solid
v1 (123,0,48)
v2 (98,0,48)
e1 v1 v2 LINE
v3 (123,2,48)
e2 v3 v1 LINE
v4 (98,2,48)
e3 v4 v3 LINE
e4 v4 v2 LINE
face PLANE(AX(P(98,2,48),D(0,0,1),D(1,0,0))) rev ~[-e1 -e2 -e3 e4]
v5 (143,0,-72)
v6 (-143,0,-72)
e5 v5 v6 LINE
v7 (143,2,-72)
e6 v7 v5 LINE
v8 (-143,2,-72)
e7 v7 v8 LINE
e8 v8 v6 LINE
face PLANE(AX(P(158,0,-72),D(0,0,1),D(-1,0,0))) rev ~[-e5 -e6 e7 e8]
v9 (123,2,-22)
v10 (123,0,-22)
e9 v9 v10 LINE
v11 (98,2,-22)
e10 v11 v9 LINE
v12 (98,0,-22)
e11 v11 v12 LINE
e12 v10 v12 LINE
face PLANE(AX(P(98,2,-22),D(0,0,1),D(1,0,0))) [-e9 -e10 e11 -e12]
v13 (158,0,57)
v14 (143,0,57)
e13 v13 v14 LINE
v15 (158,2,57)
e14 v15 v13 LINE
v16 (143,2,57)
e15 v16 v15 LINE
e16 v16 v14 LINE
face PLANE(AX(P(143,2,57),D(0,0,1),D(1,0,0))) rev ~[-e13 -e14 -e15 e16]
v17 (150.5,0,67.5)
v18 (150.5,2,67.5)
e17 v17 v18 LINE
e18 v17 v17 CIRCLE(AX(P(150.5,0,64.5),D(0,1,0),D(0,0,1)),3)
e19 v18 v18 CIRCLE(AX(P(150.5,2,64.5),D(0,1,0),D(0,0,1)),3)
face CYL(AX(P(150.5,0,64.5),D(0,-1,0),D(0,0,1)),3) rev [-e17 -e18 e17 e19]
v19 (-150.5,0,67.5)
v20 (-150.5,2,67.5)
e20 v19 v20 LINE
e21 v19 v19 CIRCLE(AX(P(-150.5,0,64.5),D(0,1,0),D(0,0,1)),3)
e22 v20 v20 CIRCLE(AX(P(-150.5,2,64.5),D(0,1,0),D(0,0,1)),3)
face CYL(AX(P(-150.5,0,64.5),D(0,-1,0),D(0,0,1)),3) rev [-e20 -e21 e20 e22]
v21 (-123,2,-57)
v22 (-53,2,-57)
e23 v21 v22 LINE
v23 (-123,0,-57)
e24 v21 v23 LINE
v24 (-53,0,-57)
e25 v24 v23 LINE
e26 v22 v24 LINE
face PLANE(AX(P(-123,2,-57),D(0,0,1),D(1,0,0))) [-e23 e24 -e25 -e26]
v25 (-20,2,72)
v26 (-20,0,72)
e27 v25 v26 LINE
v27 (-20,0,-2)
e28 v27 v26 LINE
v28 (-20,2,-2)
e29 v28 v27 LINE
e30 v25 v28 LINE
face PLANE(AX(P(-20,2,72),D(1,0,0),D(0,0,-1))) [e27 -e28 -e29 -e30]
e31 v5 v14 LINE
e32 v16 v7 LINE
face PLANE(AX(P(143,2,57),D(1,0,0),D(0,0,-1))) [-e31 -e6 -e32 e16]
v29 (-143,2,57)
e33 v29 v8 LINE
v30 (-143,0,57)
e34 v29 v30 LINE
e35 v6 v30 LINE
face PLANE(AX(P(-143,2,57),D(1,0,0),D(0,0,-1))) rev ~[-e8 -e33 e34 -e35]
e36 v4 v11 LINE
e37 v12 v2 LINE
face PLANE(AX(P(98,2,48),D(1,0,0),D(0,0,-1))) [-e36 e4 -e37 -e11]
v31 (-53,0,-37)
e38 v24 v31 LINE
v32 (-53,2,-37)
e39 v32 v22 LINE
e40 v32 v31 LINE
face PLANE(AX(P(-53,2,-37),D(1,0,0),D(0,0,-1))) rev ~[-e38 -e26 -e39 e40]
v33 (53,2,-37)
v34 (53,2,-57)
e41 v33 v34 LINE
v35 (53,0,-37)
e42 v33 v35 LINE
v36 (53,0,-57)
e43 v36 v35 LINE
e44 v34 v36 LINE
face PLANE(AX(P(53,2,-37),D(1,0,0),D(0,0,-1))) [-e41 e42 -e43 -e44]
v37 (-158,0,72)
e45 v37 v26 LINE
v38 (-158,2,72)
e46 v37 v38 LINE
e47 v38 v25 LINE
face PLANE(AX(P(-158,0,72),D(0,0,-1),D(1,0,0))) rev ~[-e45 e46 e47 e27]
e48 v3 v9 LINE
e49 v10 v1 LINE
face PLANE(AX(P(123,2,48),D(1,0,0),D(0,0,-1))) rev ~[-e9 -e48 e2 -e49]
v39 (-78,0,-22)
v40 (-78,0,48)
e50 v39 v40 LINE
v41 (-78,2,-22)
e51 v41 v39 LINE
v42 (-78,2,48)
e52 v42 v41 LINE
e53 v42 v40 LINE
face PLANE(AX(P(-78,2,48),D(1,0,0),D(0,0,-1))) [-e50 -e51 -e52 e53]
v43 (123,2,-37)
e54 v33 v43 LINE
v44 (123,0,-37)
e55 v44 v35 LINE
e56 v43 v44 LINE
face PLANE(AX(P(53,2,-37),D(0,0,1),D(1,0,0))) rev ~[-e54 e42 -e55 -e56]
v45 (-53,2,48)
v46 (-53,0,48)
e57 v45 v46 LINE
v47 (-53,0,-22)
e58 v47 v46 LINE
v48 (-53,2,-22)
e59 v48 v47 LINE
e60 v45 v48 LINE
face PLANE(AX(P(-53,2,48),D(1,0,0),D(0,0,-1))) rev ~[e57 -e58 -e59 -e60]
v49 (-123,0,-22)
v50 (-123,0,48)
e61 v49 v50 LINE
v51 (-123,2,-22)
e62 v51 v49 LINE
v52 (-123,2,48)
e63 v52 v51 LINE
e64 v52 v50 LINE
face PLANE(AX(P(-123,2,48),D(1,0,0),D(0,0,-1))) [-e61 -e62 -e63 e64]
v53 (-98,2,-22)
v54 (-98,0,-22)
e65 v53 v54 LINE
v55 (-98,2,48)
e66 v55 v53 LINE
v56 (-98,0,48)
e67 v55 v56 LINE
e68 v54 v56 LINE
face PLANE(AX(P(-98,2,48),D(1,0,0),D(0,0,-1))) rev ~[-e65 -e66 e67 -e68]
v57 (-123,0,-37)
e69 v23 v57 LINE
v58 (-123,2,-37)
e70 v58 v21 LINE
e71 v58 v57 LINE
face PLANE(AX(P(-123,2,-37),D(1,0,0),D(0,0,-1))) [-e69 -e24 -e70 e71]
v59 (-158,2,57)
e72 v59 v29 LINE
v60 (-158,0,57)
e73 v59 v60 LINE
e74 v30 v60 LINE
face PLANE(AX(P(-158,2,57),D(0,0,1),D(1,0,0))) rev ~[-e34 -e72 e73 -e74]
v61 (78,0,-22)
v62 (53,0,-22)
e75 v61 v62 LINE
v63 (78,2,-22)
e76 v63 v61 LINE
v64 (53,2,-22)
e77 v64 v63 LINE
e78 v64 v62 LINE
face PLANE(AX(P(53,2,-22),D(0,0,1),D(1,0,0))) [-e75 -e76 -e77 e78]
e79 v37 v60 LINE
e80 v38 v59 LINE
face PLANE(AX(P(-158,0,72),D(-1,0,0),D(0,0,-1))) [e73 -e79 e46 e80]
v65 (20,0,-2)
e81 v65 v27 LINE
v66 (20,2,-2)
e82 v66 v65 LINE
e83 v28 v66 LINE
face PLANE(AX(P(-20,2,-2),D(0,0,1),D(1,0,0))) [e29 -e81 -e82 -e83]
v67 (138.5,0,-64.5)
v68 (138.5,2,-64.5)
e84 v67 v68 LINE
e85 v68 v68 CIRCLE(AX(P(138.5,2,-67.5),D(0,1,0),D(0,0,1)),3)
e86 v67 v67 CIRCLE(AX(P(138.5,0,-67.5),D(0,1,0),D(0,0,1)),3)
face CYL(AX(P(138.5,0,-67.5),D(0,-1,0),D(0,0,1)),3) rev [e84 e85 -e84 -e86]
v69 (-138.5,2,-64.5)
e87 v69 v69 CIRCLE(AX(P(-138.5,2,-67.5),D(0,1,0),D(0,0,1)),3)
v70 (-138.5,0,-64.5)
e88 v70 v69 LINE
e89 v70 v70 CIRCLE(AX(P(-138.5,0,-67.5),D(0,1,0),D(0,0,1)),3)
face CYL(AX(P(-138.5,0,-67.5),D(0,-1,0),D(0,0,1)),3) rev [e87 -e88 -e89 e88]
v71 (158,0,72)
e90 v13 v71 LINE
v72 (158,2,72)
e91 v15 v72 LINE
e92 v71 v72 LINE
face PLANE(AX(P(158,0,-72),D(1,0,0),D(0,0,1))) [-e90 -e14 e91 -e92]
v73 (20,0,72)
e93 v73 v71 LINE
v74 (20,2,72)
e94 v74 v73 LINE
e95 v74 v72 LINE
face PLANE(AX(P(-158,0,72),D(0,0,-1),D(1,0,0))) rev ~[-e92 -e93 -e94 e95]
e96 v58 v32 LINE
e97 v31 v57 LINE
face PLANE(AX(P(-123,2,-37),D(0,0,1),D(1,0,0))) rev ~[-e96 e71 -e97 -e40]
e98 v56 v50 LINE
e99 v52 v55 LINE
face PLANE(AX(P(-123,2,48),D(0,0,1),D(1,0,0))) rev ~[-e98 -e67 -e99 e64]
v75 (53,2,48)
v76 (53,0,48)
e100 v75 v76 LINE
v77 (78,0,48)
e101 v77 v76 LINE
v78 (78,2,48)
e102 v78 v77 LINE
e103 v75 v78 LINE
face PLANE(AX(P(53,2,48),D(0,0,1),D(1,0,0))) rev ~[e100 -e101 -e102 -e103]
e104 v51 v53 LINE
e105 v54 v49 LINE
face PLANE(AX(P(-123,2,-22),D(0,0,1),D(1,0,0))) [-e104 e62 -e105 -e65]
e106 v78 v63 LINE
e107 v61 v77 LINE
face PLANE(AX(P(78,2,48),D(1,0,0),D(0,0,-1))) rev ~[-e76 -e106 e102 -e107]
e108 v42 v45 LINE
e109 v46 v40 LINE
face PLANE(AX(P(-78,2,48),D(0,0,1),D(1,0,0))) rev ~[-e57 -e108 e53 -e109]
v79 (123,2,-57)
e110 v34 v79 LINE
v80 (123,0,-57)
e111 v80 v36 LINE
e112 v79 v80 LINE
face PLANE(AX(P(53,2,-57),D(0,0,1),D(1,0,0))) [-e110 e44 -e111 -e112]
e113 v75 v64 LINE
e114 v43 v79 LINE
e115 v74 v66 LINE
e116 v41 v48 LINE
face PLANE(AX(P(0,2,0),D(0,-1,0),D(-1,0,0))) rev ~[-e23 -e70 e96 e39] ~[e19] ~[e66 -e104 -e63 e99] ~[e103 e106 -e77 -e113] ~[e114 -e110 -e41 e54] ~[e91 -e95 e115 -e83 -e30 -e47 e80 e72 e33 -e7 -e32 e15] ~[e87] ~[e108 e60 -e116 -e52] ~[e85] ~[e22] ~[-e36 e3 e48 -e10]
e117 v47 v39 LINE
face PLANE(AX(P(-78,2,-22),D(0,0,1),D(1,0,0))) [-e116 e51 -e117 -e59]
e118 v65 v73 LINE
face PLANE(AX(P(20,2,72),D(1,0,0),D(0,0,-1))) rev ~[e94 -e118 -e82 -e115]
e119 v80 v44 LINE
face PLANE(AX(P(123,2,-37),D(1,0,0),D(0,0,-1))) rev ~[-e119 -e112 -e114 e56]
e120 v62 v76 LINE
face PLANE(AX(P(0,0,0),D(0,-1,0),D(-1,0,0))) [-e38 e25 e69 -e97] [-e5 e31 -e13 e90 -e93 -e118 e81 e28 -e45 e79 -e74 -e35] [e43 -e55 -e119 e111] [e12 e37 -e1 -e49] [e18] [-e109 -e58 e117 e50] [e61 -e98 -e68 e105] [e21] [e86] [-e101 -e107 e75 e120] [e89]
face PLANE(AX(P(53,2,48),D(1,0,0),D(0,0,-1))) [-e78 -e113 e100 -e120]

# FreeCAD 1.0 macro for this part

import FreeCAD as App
import Part
import Sketcher

V = App.Vector

doc = App.newDocument("Part")
body = doc.addObject("PartDesign::Body", "Body")

# Sketch on XZ plane
sketch1 = body.newObject("Sketcher::SketchObject", "Sketch")
sketch1.AttachmentSupport = (doc.getObject("XZ_Plane"), [""])
sketch1.MapMode = "FlatFace"
sketch1.addGeometry([
    Part.LineSegment(V(158, -72, 0), V(-158, -72, 0)),  # 0
    Part.LineSegment(V(-158, -72, 0), V(-158, 72, 0)),  # 1
    Part.LineSegment(V(-158, 72, 0), V(158, 72, 0)),  # 2
    Part.LineSegment(V(158, 72, 0), V(158, -72, 0)),  # 3
    Part.Circle(V(150.5, 64.5, 0), V(0, 0, 1), 3),  # 4
    Part.Circle(V(-150.5, 64.5, 0), V(0, 0, 1), 3),  # 5
    Part.Circle(V(138.5, -67.5, 0), V(0, 0, 1), 3),  # 6
    Part.Circle(V(-138.5, -67.5, 0), V(0, 0, 1), 3),  # 7
], False)
sketch1.addConstraint([
    Sketcher.Constraint("Coincident", 0, 2, 1, 1),
    Sketcher.Constraint("Coincident", 1, 2, 2, 1),
    Sketcher.Constraint("Coincident", 2, 2, 3, 1),
    Sketcher.Constraint("Coincident", 3, 2, 0, 1),
    Sketcher.Constraint("Horizontal", 0),
    Sketcher.Constraint("Vertical", 1),
    Sketcher.Constraint("Horizontal", 2),
    Sketcher.Constraint("Vertical", 3),
    Sketcher.Constraint("Equal", 4, 5),
    Sketcher.Constraint("Equal", 5, 6),
    Sketcher.Constraint("Equal", 6, 7),
    Sketcher.Constraint("Symmetric", 0, 2, 2, 2, -1, 1),
    Sketcher.Constraint("Symmetric", 4, 3, 5, 3, -2),
    Sketcher.Constraint("Symmetric", 6, 3, 7, 3, -2),
    Sketcher.Constraint("Diameter", 4, 6.0),
    Sketcher.Constraint("DistanceX", 0, 2, 0, 1, 316.0),
    Sketcher.Constraint("DistanceY", 1, 1, 1, 2, 144.0),
    Sketcher.Constraint("DistanceX", 5, 3, 4, 3, 301.0),
    Sketcher.Constraint("DistanceX", 6, 3, 4, 3, 12.0),
    Sketcher.Constraint("DistanceY", 6, 3, 4, 3, 132.0),
    Sketcher.Constraint("DistanceY", -1, 1, 4, 3, 64.5),
])
pad1 = body.newObject("PartDesign::Pad", "Pad")
pad1.Profile = sketch1
pad1.Length = 2
pad1.Reversed = True

# Sketch on XZ plane
sketch2 = body.newObject("Sketcher::SketchObject", "Sketch001")
sketch2.AttachmentSupport = (doc.getObject("XZ_Plane"), [""])
sketch2.MapMode = "FlatFace"
sketch2.AttachmentOffset = App.Placement(V(0, 0, -2), App.Rotation())
sketch2.addGeometry([
    Part.LineSegment(V(143, -72, 0), V(143, 57, 0)),  # 0
    Part.LineSegment(V(143, 57, 0), V(158, 57, 0)),  # 1
    Part.LineSegment(V(158, 57, 0), V(158, -72, 0)),  # 2
    Part.LineSegment(V(158, -72, 0), V(143, -72, 0)),  # 3
    Part.LineSegment(V(-158, -72, 0), V(-158, 57, 0)),  # 4
    Part.LineSegment(V(-158, 57, 0), V(-143, 57, 0)),  # 5
    Part.LineSegment(V(-143, 57, 0), V(-143, -72, 0)),  # 6
    Part.LineSegment(V(-143, -72, 0), V(-158, -72, 0)),  # 7
], False)
sketch2.addConstraint([
    Sketcher.Constraint("Coincident", 0, 2, 1, 1),
    Sketcher.Constraint("Coincident", 1, 2, 2, 1),
    Sketcher.Constraint("Coincident", 2, 2, 3, 1),
    Sketcher.Constraint("Coincident", 3, 2, 0, 1),
    Sketcher.Constraint("Coincident", 4, 2, 5, 1),
    Sketcher.Constraint("Coincident", 5, 2, 6, 1),
    Sketcher.Constraint("Coincident", 6, 2, 7, 1),
    Sketcher.Constraint("Coincident", 7, 2, 4, 1),
    Sketcher.Constraint("Vertical", 0),
    Sketcher.Constraint("Horizontal", 1),
    Sketcher.Constraint("Vertical", 2),
    Sketcher.Constraint("Horizontal", 3),
    Sketcher.Constraint("Vertical", 4),
    Sketcher.Constraint("Horizontal", 5),
    Sketcher.Constraint("Vertical", 6),
    Sketcher.Constraint("Horizontal", 7),
    Sketcher.Constraint("Symmetric", 1, 2, 4, 2, -2),
    Sketcher.Constraint("Symmetric", 3, 2, 6, 2, -2),
    Sketcher.Constraint("DistanceX", 1, 1, 1, 2, 15.0),
    Sketcher.Constraint("DistanceY", 0, 1, 0, 2, 129.0),
    Sketcher.Constraint("DistanceX", -1, 1, 0, 2, 143.0),
    Sketcher.Constraint("DistanceY", -1, 1, 0, 2, 57.0),
])
pocket1 = body.newObject("PartDesign::Pocket", "Pocket")
pocket1.Profile = sketch2
pocket1.Type = "ThroughAll"
pocket1.Reversed = True

# Sketch on XZ plane
sketch3 = body.newObject("Sketcher::SketchObject", "Sketch002")
sketch3.AttachmentSupport = (doc.getObject("XZ_Plane"), [""])
sketch3.MapMode = "FlatFace"
sketch3.AttachmentOffset = App.Placement(V(0, 0, -2), App.Rotation())
sketch3.addGeometry([
    Part.LineSegment(V(-20, -2, 0), V(-20, 72, 0)),
    Part.LineSegment(V(-20, 72, 0), V(20, 72, 0)),
    Part.LineSegment(V(20, 72, 0), V(20, -2, 0)),
    Part.LineSegment(V(20, -2, 0), V(-20, -2, 0)),
], False)
sketch3.addConstraint([
    Sketcher.Constraint("Coincident", 0, 2, 1, 1),
    Sketcher.Constraint("Coincident", 1, 2, 2, 1),
    Sketcher.Constraint("Coincident", 2, 2, 3, 1),
    Sketcher.Constraint("Coincident", 3, 2, 0, 1),
    Sketcher.Constraint("Vertical", 0),
    Sketcher.Constraint("Horizontal", 1),
    Sketcher.Constraint("Vertical", 2),
    Sketcher.Constraint("Horizontal", 3),
    Sketcher.Constraint("DistanceX", 1, 1, 1, 2, 40.0),
    Sketcher.Constraint("DistanceY", 0, 1, 0, 2, 74.0),
    Sketcher.Constraint("DistanceX", 0, 2, -1, 1, 20.0),
    Sketcher.Constraint("DistanceY", -1, 1, 0, 2, 72.0),
])
pocket2 = body.newObject("PartDesign::Pocket", "Pocket001")
pocket2.Profile = sketch3
pocket2.Type = "ThroughAll"
pocket2.Reversed = True

# Sketch on XZ plane
sketch4 = body.newObject("Sketcher::SketchObject", "Sketch003")
sketch4.AttachmentSupport = (doc.getObject("XZ_Plane"), [""])
sketch4.MapMode = "FlatFace"
sketch4.AttachmentOffset = App.Placement(V(0, 0, -2), App.Rotation())
sketch4.addGeometry([
    Part.LineSegment(V(-123, -57, 0), V(-123, -37, 0)),  # 0
    Part.LineSegment(V(-123, -37, 0), V(-53, -37, 0)),  # 1
    Part.LineSegment(V(-53, -37, 0), V(-53, -57, 0)),  # 2
    Part.LineSegment(V(-53, -57, 0), V(-123, -57, 0)),  # 3
    Part.LineSegment(V(-123, -22, 0), V(-123, 48, 0)),  # 4
    Part.LineSegment(V(-123, 48, 0), V(-98, 48, 0)),  # 5
    Part.LineSegment(V(-98, 48, 0), V(-98, -22, 0)),  # 6
    Part.LineSegment(V(-98, -22, 0), V(-123, -22, 0)),  # 7
    Part.LineSegment(V(-78, -22, 0), V(-78, 48, 0)),  # 8
    Part.LineSegment(V(-78, 48, 0), V(-53, 48, 0)),  # 9
    Part.LineSegment(V(-53, 48, 0), V(-53, -22, 0)),  # 10
    Part.LineSegment(V(-53, -22, 0), V(-78, -22, 0)),  # 11
    Part.LineSegment(V(53, -22, 0), V(53, 48, 0)),  # 12
    Part.LineSegment(V(53, 48, 0), V(78, 48, 0)),  # 13
    Part.LineSegment(V(78, 48, 0), V(78, -22, 0)),  # 14
    Part.LineSegment(V(78, -22, 0), V(53, -22, 0)),  # 15
    Part.LineSegment(V(98, -22, 0), V(98, 48, 0)),  # 16
    Part.LineSegment(V(98, 48, 0), V(123, 48, 0)),  # 17
    Part.LineSegment(V(123, 48, 0), V(123, -22, 0)),  # 18
    Part.LineSegment(V(123, -22, 0), V(98, -22, 0)),  # 19
    Part.LineSegment(V(53, -57, 0), V(53, -37, 0)),  # 20
    Part.LineSegment(V(53, -37, 0), V(123, -37, 0)),  # 21
    Part.LineSegment(V(123, -37, 0), V(123, -57, 0)),  # 22
    Part.LineSegment(V(123, -57, 0), V(53, -57, 0)),  # 23
], False)
sketch4.addConstraint([
    Sketcher.Constraint("Coincident", 0, 2, 1, 1),
    Sketcher.Constraint("Coincident", 1, 2, 2, 1),
    Sketcher.Constraint("Coincident", 2, 2, 3, 1),
    Sketcher.Constraint("Coincident", 3, 2, 0, 1),
    Sketcher.Constraint("Coincident", 4, 2, 5, 1),
    Sketcher.Constraint("Coincident", 5, 2, 6, 1),
    Sketcher.Constraint("Coincident", 6, 2, 7, 1),
    Sketcher.Constraint("Coincident", 7, 2, 4, 1),
    Sketcher.Constraint("Coincident", 8, 2, 9, 1),
    Sketcher.Constraint("Coincident", 9, 2, 10, 1),
    Sketcher.Constraint("Coincident", 10, 2, 11, 1),
    Sketcher.Constraint("Coincident", 11, 2, 8, 1),
    Sketcher.Constraint("Coincident", 12, 2, 13, 1),
    Sketcher.Constraint("Coincident", 13, 2, 14, 1),
    Sketcher.Constraint("Coincident", 14, 2, 15, 1),
    Sketcher.Constraint("Coincident", 15, 2, 12, 1),
    Sketcher.Constraint("Coincident", 16, 2, 17, 1),
    Sketcher.Constraint("Coincident", 17, 2, 18, 1),
    Sketcher.Constraint("Coincident", 18, 2, 19, 1),
    Sketcher.Constraint("Coincident", 19, 2, 16, 1),
    Sketcher.Constraint("Coincident", 20, 2, 21, 1),
    Sketcher.Constraint("Coincident", 21, 2, 22, 1),
    Sketcher.Constraint("Coincident", 22, 2, 23, 1),
    Sketcher.Constraint("Coincident", 23, 2, 20, 1),
    Sketcher.Constraint("Vertical", 0),
    Sketcher.Constraint("Horizontal", 1),
    Sketcher.Constraint("Vertical", 2),
    Sketcher.Constraint("Horizontal", 3),
    Sketcher.Constraint("Vertical", 4),
    Sketcher.Constraint("Horizontal", 5),
    Sketcher.Constraint("Vertical", 6),
    Sketcher.Constraint("Horizontal", 7),
    Sketcher.Constraint("Vertical", 8),
    Sketcher.Constraint("Horizontal", 9),
    Sketcher.Constraint("Vertical", 10),
    Sketcher.Constraint("Horizontal", 11),
    Sketcher.Constraint("Vertical", 12),
    Sketcher.Constraint("Horizontal", 13),
    Sketcher.Constraint("Vertical", 14),
    Sketcher.Constraint("Horizontal", 15),
    Sketcher.Constraint("Vertical", 16),
    Sketcher.Constraint("Horizontal", 17),
    Sketcher.Constraint("Vertical", 18),
    Sketcher.Constraint("Horizontal", 19),
    Sketcher.Constraint("Vertical", 20),
    Sketcher.Constraint("Horizontal", 21),
    Sketcher.Constraint("Vertical", 22),
    Sketcher.Constraint("Horizontal", 23),
    Sketcher.Constraint("Symmetric", 9, 2, 12, 2, -2),
    Sketcher.Constraint("Symmetric", 11, 2, 14, 2, -2),
    Sketcher.Constraint("Symmetric", 5, 2, 16, 2, -2),
    Sketcher.Constraint("Symmetric", 7, 2, 18, 2, -2),
    Sketcher.Constraint("Symmetric", 1, 2, 20, 2, -2),
    Sketcher.Constraint("Symmetric", 3, 2, 22, 2, -2),
    Sketcher.Constraint("Horizontal", 5, 2, 8, 2),
    Sketcher.Constraint("Horizontal", 7, 2, 10, 2),
    Sketcher.Constraint("Vertical", 3, 2, 4, 2),
    Sketcher.Constraint("Vertical", 2, 2, 9, 2),
    Sketcher.Constraint("Equal", 7, 9),
    Sketcher.Constraint("Equal", 23, 4),
    Sketcher.Constraint("DistanceX", 1, 1, 1, 2, 70.0),
    Sketcher.Constraint("DistanceX", 5, 1, 5, 2, 25.0),
    Sketcher.Constraint("DistanceY", 0, 1, 0, 2, 20.0),
    Sketcher.Constraint("DistanceX", 0, 2, -1, 1, 123.0),
    Sketcher.Constraint("DistanceY", 0, 2, -1, 1, 37.0),
    Sketcher.Constraint("DistanceY", -1, 1, 4, 2, 48.0),
])
pocket3 = body.newObject("PartDesign::Pocket", "Pocket002")
pocket3.Profile = sketch4
pocket3.Type = "ThroughAll"
pocket3.Reversed = True

doc.recompute()
